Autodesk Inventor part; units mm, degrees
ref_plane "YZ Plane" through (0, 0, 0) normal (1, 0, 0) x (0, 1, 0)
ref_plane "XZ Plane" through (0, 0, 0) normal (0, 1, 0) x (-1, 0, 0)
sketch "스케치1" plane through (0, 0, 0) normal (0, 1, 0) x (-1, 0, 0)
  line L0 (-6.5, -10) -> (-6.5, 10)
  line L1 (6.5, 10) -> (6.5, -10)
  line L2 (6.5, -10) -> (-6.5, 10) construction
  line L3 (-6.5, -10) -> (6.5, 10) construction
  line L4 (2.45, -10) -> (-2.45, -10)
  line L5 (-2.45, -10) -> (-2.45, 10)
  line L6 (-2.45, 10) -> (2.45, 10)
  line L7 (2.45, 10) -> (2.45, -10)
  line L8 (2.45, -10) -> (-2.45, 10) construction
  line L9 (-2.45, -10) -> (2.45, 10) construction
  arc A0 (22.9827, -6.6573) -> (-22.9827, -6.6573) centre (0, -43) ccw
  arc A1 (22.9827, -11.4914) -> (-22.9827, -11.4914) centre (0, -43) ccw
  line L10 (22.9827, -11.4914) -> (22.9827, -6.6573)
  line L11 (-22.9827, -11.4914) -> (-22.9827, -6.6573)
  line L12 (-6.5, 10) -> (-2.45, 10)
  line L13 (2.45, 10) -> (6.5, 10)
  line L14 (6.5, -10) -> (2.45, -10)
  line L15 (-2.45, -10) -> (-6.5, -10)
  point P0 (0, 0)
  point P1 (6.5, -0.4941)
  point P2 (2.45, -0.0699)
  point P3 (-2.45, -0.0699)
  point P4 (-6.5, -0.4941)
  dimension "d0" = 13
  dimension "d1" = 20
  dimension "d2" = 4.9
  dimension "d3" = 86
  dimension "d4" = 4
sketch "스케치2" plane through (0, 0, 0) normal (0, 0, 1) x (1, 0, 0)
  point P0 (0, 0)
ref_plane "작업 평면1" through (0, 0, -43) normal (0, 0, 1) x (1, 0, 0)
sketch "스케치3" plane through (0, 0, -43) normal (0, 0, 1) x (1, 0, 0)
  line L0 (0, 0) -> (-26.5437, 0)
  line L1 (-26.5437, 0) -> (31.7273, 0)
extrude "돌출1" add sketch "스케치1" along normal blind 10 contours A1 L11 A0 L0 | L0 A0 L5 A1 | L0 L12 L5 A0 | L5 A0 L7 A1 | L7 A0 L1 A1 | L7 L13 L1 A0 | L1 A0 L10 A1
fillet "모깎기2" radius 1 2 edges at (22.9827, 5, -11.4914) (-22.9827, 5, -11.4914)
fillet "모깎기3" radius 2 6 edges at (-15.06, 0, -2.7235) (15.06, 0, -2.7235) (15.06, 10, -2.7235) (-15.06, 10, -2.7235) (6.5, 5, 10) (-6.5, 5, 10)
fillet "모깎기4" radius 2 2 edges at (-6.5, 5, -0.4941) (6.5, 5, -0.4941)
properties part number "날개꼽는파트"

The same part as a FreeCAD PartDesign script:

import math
import FreeCAD as App
import Part
import Sketcher


def edges_at(feature, points):
    """Names of the edges that pass closest to the given points."""
    edges = feature.Shape.Edges
    near = lambda p: min(range(len(edges)), key=lambda i: edges[i].distToShape(Part.Vertex(*p))[0])
    return sorted({f"Edge{near(p) + 1}" for p in points})

doc = App.newDocument("Part")
body = doc.addObject("PartDesign::Body", "Body")

# Sketch on XZ plane
sketch1 = doc.addObject("Sketcher::SketchObject", "Sketch")
body.addObject(sketch1)
sketch1.AttachmentSupport = (doc.XZ_Plane, [""])
sketch1.MapMode = "FlatFace"
sketch1.addGeometry([
    Part.ArcOfCircle(Part.Circle(App.Vector(0, -43, 0), App.Vector(0, 0, 1), 39), math.radians(54), math.radians(126)),  # 0
    Part.LineSegment(App.Vector(-23, -11.5, 0), App.Vector(-23, -6.7, 0)),  # 1
    Part.ArcOfCircle(Part.Circle(App.Vector(0, -43, 0), App.Vector(0, 0, 1), 43), math.radians(99), math.radians(122)),  # 2
    Part.LineSegment(App.Vector(-6.5, -0.5, 0), App.Vector(-6.5, 10, 0)),  # 3
    Part.LineSegment(App.Vector(-6.5, 10, 0), App.Vector(-2.5, 10, 0)),  # 4
    Part.LineSegment(App.Vector(-2.5, 10, 0), App.Vector(-2.5, -0.1, 0)),  # 5
    Part.ArcOfCircle(Part.Circle(App.Vector(0, -43, 0), App.Vector(0, 0, 1), 43), math.radians(86.73), math.radians(93.27)),  # 6
    Part.LineSegment(App.Vector(2.5, -0.1, 0), App.Vector(2.5, 10, 0)),  # 7
    Part.LineSegment(App.Vector(2.5, 10, 0), App.Vector(6.5, 10, 0)),  # 8
    Part.LineSegment(App.Vector(6.5, 10, 0), App.Vector(6.5, -0.5, 0)),  # 9
    Part.ArcOfCircle(Part.Circle(App.Vector(0, -43, 0), App.Vector(0, 0, 1), 43), math.radians(58), math.radians(81)),  # 10
    Part.LineSegment(App.Vector(23, -6.7, 0), App.Vector(23, -11.5, 0)),  # 11
], False)
sketch1.addConstraint([
    Sketcher.Constraint("Coincident", 0, 2, 1, 1),
    Sketcher.Constraint("Coincident", 1, 2, 2, 2),
    Sketcher.Constraint("Coincident", 2, 1, 3, 1),
    Sketcher.Constraint("Coincident", 3, 2, 4, 1),
    Sketcher.Constraint("Coincident", 4, 2, 5, 1),
    Sketcher.Constraint("Coincident", 5, 2, 6, 2),
    Sketcher.Constraint("Coincident", 6, 1, 7, 1),
    Sketcher.Constraint("Coincident", 7, 2, 8, 1),
    Sketcher.Constraint("Coincident", 8, 2, 9, 1),
    Sketcher.Constraint("Coincident", 9, 2, 10, 2),
    Sketcher.Constraint("Coincident", 10, 1, 11, 1),
    Sketcher.Constraint("Coincident", 11, 2, 0, 1),
    Sketcher.Constraint("Vertical", 1),
    Sketcher.Constraint("Vertical", 3),
    Sketcher.Constraint("Horizontal", 4),
    Sketcher.Constraint("Vertical", 5),
    Sketcher.Constraint("Vertical", 7),
    Sketcher.Constraint("Horizontal", 8),
    Sketcher.Constraint("Vertical", 9),
    Sketcher.Constraint("Vertical", 11),
    Sketcher.Constraint("Coincident", 2, 3, 0, 3),
    Sketcher.Constraint("Coincident", 6, 3, 0, 3),
    Sketcher.Constraint("Coincident", 10, 3, 0, 3),
    Sketcher.Constraint("Equal", 2, 6),
    Sketcher.Constraint("Equal", 6, 10),
    Sketcher.Constraint("Symmetric", 5, 2, 6, 1, -2),
    Sketcher.Constraint("Symmetric", 3, 2, 8, 2, -2),
    Sketcher.Constraint("Horizontal", 1, 2, 10, 1),
    Sketcher.Constraint("Radius", 2, 43.0),
    Sketcher.Constraint("Radius", 0, 39.0),
    Sketcher.Constraint("DistanceX", 3, 2, 8, 2, 13.0),
    Sketcher.Constraint("DistanceX", 5, 2, 6, 1, 4.9),
    Sketcher.Constraint("DistanceY", 0, 3, -1, 1, 43.0),
    Sketcher.Constraint("DistanceY", -1, 1, 3, 2, 10.0),
    Sketcher.Constraint("DistanceY", 1, 1, 1, 2, 4.834),
])
pad1 = doc.addObject("PartDesign::Pad", "Pad")
body.addObject(pad1)
pad1.Profile = sketch1
pad1.Length = 10
pad1.Reversed = True
doc.recompute()

fillet = doc.addObject("PartDesign::Fillet", "Fillet")
body.addObject(fillet)
fillet.Base = (pad1, edges_at(pad1, [(22.983, 5, -11.491), (-22.983, 5, -11.491)]))
fillet.Radius = 1
doc.recompute()

fillet2 = doc.addObject("PartDesign::Fillet", "Fillet001")
body.addObject(fillet2)
fillet2.Base = (fillet, edges_at(fillet, [
    (-15.06, 0, -2.724),
    (15.06, 0, -2.724),
    (15.06, 10, -2.724),
    (-15.06, 10, -2.724),
    (6.5, 5, 10),
    (-6.5, 5, 10),
]))
fillet2.Radius = 2
doc.recompute()

fillet3 = doc.addObject("PartDesign::Fillet", "Fillet002")
body.addObject(fillet3)
fillet3.Base = (fillet2, edges_at(fillet2, [(-6.5, 5, -0.494), (6.5, 5, -0.494)]))
fillet3.Radius = 2

doc.recompute()
